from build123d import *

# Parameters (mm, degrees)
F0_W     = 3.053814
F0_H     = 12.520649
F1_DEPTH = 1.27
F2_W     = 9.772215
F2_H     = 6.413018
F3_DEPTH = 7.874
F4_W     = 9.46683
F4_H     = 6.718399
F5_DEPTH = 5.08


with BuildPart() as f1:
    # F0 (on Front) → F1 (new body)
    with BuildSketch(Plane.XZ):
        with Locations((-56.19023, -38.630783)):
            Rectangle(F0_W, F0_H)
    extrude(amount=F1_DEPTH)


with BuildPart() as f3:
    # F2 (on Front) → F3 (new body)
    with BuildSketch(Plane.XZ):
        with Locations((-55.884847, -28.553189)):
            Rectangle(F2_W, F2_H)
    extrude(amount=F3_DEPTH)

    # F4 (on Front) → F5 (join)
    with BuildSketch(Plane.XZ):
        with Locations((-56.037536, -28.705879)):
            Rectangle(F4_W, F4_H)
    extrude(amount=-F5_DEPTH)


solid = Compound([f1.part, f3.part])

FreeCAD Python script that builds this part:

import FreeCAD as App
import Part
import Sketcher

V = App.Vector
Q = App.Units.Quantity


def add_polygon(sketch, points):
    """Adds a closed chain of lines whose ends are joined by coincident constraints."""
    first, n = sketch.GeometryCount, len(points)
    for a, b in zip(points, points[1:] + points[:1]):
        sketch.addGeometry(Part.LineSegment(App.Vector(*a, 0), App.Vector(*b, 0)), False)
    for i in range(n):
        sketch.addConstraint(Sketcher.Constraint("Coincident", first + i, 2, first + (i + 1) % n, 1))

doc = App.newDocument("Part")
params = doc.addObject("Spreadsheet::Sheet", "Params")
for row, (alias, value) in enumerate([
    ("pad1_length", "0.05 in"),
    ("pad2_length", "0.31 in"),
    ("pad3_length", "0.2 in"),
], start=1):
    params.set(f"A{row}", alias)
    params.set(f"B{row}", "=" + value)
    params.setAlias(f"B{row}", alias)

body = doc.addObject("PartDesign::Body", "Body")

sketch1 = doc.addObject("Sketcher::SketchObject", "Sketch")
body.addObject(sketch1)
sketch1.AttachmentSupport = (doc.XZ_Plane, [""])
sketch1.MapMode = "FlatFace"
add_polygon(sketch1, [(-57.7, -32.4), (-57.7, -44.9), (-54.7, -44.9), (-54.7, -32.4)])
sketch1.addConstraint(Sketcher.Constraint("Vertical", 0))
sketch1.addConstraint(Sketcher.Constraint("Horizontal", 1))
sketch1.addConstraint(Sketcher.Constraint("Vertical", 2))
sketch1.addConstraint(Sketcher.Constraint("Horizontal", 3))
sketch1.addConstraint(Sketcher.Constraint("DistanceY", 0, 2, 0, 1, Q("12.520649 mm")))
sketch1.addConstraint(Sketcher.Constraint("DistanceX", 1, 1, 1, 2, Q("3.053814 mm")))
sketch1.addConstraint(Sketcher.Constraint("DistanceY", 2, 2, -1, 1, Q("32.370458 mm")))
sketch1.addConstraint(Sketcher.Constraint("DistanceX", 0, 2, -1, 1, Q("57.717137 mm")))
pad1 = doc.addObject("PartDesign::Pad", "Pad")
body.addObject(pad1)
pad1.Profile = sketch1
pad1.setExpression("Length", "Params.pad1_length")
body2 = doc.addObject("PartDesign::Body", "Body001")

sketch2 = doc.addObject("Sketcher::SketchObject", "Sketch001")
body2.addObject(sketch2)
sketch2.AttachmentSupport = (doc.getObject("XZ_Plane001"), [""])
sketch2.MapMode = "FlatFace"
add_polygon(sketch2, [(-61, -25), (-61, -32), (-51, -32), (-51, -25)])
sketch2.addConstraint(Sketcher.Constraint("Vertical", 0))
sketch2.addConstraint(Sketcher.Constraint("Horizontal", 1))
sketch2.addConstraint(Sketcher.Constraint("Vertical", 2))
sketch2.addConstraint(Sketcher.Constraint("Horizontal", 3))
sketch2.addConstraint(Sketcher.Constraint("DistanceY", 0, 2, 0, 1, Q("6.413018 mm")))
sketch2.addConstraint(Sketcher.Constraint("DistanceY", 0, 2, -1, 1, Q("31.759698 mm")))
sketch2.addConstraint(Sketcher.Constraint("DistanceX", 1, 1, 1, 2, Q("9.772215 mm")))
sketch2.addConstraint(Sketcher.Constraint("DistanceX", 1, 2, -1, 1, Q("50.998739 mm")))
pad2 = doc.addObject("PartDesign::Pad", "Pad001")
body2.addObject(pad2)
pad2.Profile = sketch2
pad2.setExpression("Length", "Params.pad2_length")

sketch3 = doc.addObject("Sketcher::SketchObject", "Sketch002")
body2.addObject(sketch3)
sketch3.AttachmentSupport = (doc.getObject("XZ_Plane001"), [""])
sketch3.MapMode = "FlatFace"
add_polygon(sketch3, [(-61, -25), (-61, -32), (-51, -32), (-51, -25)])
sketch3.addConstraint(Sketcher.Constraint("Vertical", 0))
sketch3.addConstraint(Sketcher.Constraint("Horizontal", 1))
sketch3.addConstraint(Sketcher.Constraint("Vertical", 2))
sketch3.addConstraint(Sketcher.Constraint("Horizontal", 3))
sketch3.addConstraint(Sketcher.Constraint("DistanceY", 0, 2, 0, 1, Q("6.718399 mm")))
sketch3.addConstraint(Sketcher.Constraint("DistanceX", 1, 1, 1, 2, Q("9.46683 mm")))
sketch3.addConstraint(Sketcher.Constraint("DistanceX", 0, 2, -1, 1, Q("60.770951 mm")))
sketch3.addConstraint(Sketcher.Constraint("DistanceY", 0, 2, -1, 1, Q("32.065078 mm")))
pad3 = doc.addObject("PartDesign::Pad", "Pad002")
body2.addObject(pad3)
pad3.Profile = sketch3
pad3.setExpression("Length", "Params.pad3_length")
pad3.Reversed = True

doc.recompute()
